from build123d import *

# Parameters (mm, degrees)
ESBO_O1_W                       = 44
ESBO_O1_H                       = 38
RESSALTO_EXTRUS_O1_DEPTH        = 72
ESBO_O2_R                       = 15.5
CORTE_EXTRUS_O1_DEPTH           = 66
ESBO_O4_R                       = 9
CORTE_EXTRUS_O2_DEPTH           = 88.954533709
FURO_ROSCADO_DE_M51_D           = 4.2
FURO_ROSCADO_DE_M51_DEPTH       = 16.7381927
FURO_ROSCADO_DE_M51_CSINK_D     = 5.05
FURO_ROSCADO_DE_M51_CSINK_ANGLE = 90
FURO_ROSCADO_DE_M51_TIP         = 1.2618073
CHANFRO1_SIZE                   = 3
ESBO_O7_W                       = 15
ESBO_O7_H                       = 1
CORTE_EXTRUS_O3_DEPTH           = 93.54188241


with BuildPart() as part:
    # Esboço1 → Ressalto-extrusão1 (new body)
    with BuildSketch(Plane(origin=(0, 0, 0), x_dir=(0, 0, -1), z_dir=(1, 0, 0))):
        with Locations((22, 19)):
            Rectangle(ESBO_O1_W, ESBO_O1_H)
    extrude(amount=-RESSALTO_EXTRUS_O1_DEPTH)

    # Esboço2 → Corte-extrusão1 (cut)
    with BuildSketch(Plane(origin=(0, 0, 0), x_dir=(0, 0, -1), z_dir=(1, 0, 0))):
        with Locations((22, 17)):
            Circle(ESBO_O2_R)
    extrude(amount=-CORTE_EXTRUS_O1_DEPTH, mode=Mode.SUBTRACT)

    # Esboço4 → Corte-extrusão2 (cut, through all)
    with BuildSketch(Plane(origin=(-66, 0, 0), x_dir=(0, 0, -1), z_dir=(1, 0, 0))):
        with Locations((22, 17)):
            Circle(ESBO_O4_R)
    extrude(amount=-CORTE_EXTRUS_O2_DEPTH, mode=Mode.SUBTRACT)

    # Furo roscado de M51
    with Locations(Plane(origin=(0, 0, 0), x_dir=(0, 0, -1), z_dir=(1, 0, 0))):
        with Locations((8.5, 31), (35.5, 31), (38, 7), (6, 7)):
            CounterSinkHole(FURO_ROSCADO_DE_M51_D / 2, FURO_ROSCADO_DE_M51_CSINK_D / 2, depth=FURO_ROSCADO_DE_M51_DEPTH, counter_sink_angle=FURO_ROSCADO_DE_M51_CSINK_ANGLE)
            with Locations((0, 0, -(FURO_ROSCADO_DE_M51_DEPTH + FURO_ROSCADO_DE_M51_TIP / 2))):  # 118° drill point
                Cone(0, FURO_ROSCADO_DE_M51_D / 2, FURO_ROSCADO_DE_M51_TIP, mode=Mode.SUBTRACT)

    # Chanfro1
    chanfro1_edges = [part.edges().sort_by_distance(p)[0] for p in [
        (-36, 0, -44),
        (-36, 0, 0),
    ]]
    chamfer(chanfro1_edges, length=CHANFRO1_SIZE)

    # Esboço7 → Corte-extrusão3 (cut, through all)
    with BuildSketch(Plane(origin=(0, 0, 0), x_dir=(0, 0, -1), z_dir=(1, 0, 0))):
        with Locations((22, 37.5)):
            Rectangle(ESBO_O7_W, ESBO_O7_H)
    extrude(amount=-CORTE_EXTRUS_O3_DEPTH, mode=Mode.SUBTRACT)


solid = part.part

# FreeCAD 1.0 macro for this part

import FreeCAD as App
import Part
import Sketcher


def edges_at(feature, points):
    """Names of the edges that pass closest to the given points."""
    edges = feature.Shape.Edges
    near = lambda p: min(range(len(edges)), key=lambda i: edges[i].distToShape(Part.Vertex(*p))[0])
    return sorted({f"Edge{near(p) + 1}" for p in points})

doc = App.newDocument("Part")
body = doc.addObject("PartDesign::Body", "Body")

# Sketch on YZ plane
sketch1 = body.newObject("Sketcher::SketchObject", "Sketch")
sketch1.AttachmentSupport = (doc.getObject("YZ_Plane"), [""])
sketch1.MapMode = "FlatFace"
sketch1.addGeometry(Part.LineSegment(App.Vector(38, 0, 0), App.Vector(0, 0, 0)), False)
sketch1.addGeometry(Part.LineSegment(App.Vector(0, 0, 0), App.Vector(0, -44, 0)), False)
sketch1.addGeometry(Part.LineSegment(App.Vector(0, -44, 0), App.Vector(38, -44, 0)), False)
sketch1.addGeometry(Part.LineSegment(App.Vector(38, -44, 0), App.Vector(38, 0, 0)), False)
sketch1.addConstraint(Sketcher.Constraint("Coincident", 0, 2, 1, 1))
sketch1.addConstraint(Sketcher.Constraint("Coincident", 1, 2, 2, 1))
sketch1.addConstraint(Sketcher.Constraint("Coincident", 2, 2, 3, 1))
sketch1.addConstraint(Sketcher.Constraint("Coincident", 3, 2, 0, 1))
sketch1.addConstraint(Sketcher.Constraint("Horizontal", 0))
sketch1.addConstraint(Sketcher.Constraint("Vertical", 1))
sketch1.addConstraint(Sketcher.Constraint("Horizontal", 2))
sketch1.addConstraint(Sketcher.Constraint("Vertical", 3))
sketch1.addConstraint(Sketcher.Constraint("Coincident", 0, 2, -1, 1))
sketch1.addConstraint(Sketcher.Constraint("DistanceX", 0, 2, 0, 1, 38.0))
sketch1.addConstraint(Sketcher.Constraint("DistanceY", 1, 2, 1, 1, 44.0))
pad1 = body.newObject("PartDesign::Pad", "Pad")
pad1.Profile = sketch1
pad1.Length = 72
pad1.Reversed = True

# Sketch on YZ plane
sketch2 = body.newObject("Sketcher::SketchObject", "Sketch001")
sketch2.AttachmentSupport = (doc.getObject("YZ_Plane"), [""])
sketch2.MapMode = "FlatFace"
sketch2.addGeometry(Part.Circle(App.Vector(17, -22, 0), App.Vector(0, 0, 1), 16), False)
sketch2.addConstraint(Sketcher.Constraint("Diameter", 0, 31.0))
sketch2.addConstraint(Sketcher.Constraint("DistanceX", -1, 1, 0, 3, 17.0))
sketch2.addConstraint(Sketcher.Constraint("DistanceY", 0, 3, -1, 1, 22.0))
pocket1 = body.newObject("PartDesign::Pocket", "Pocket")
pocket1.Profile = sketch2
pocket1.Length = 66

# Sketch on YZ plane
sketch3 = body.newObject("Sketcher::SketchObject", "Sketch002")
sketch3.AttachmentSupport = (doc.getObject("YZ_Plane"), [""])
sketch3.MapMode = "FlatFace"
sketch3.AttachmentOffset = App.Placement(App.Vector(0, 0, -66), App.Rotation())
sketch3.addGeometry(Part.Circle(App.Vector(17, -22, 0), App.Vector(0, 0, 1), 9), False)
sketch3.addConstraint(Sketcher.Constraint("Diameter", 0, 18.0))
sketch3.addConstraint(Sketcher.Constraint("DistanceX", -1, 1, 0, 3, 17.0))
sketch3.addConstraint(Sketcher.Constraint("DistanceY", 0, 3, -1, 1, 22.0))
pocket2 = body.newObject("PartDesign::Pocket", "Pocket001")
pocket2.Profile = sketch3
pocket2.Type = "ThroughAll"

# Sketch on YZ plane
sketch4 = body.newObject("Sketcher::SketchObject", "Sketch003")
sketch4.AttachmentSupport = (doc.getObject("YZ_Plane"), [""])
sketch4.MapMode = "FlatFace"
sketch4.addGeometry(Part.Circle(App.Vector(31, -8.5, 0), App.Vector(0, 0, 1), 2.1), False)
sketch4.addGeometry(Part.Circle(App.Vector(31, -35.5, 0), App.Vector(0, 0, 1), 2.1), False)
sketch4.addGeometry(Part.Circle(App.Vector(7, -38, 0), App.Vector(0, 0, 1), 2.1), False)
sketch4.addGeometry(Part.Circle(App.Vector(7, -6, 0), App.Vector(0, 0, 1), 2.1), False)
sketch4.addConstraint(Sketcher.Constraint("Equal", 0, 1))
sketch4.addConstraint(Sketcher.Constraint("Equal", 1, 2))
sketch4.addConstraint(Sketcher.Constraint("Equal", 2, 3))
sketch4.addConstraint(Sketcher.Constraint("Vertical", 0, 3, 1, 3))
sketch4.addConstraint(Sketcher.Constraint("Vertical", 2, 3, 3, 3))
sketch4.addConstraint(Sketcher.Constraint("Diameter", 0, 4.2))
sketch4.addConstraint(Sketcher.Constraint("DistanceX", -1, 1, 0, 3, 31.0))
sketch4.addConstraint(Sketcher.Constraint("DistanceX", -1, 1, 2, 3, 7.0))
sketch4.addConstraint(Sketcher.Constraint("DistanceY", 2, 3, -1, 1, 38.0))
sketch4.addConstraint(Sketcher.Constraint("DistanceY", 3, 3, -1, 1, 6.0))
sketch4.addConstraint(Sketcher.Constraint("DistanceY", 1, 3, 0, 3, 27.0))
sketch4.addConstraint(Sketcher.Constraint("DistanceY", 0, 3, -1, 1, 8.5))
doc.recompute()
hole = body.newObject("PartDesign::Hole", "Hole")
hole.Profile = sketch4
hole.ThreadType = "None"
hole.Diameter = 4.2
hole.DepthType = "Dimension"
hole.Depth = 16.738193
hole.DrillPoint = "Angled"
hole.DrillPointAngle = 118
hole.HoleCutType = "Countersink"
hole.HoleCutDiameter = 5.05
hole.HoleCutCountersinkAngle = 90
doc.recompute()

chamfer = body.newObject("PartDesign::Chamfer", "Chamfer")
chamfer.Base = (hole, edges_at(hole, [(-36, 0, -44), (-36, 0, 0)]))
chamfer.Size = 3

# Sketch on YZ plane
sketch5 = body.newObject("Sketcher::SketchObject", "Sketch004")
sketch5.AttachmentSupport = (doc.getObject("YZ_Plane"), [""])
sketch5.MapMode = "FlatFace"
sketch5.addGeometry(Part.LineSegment(App.Vector(38, -14.5, 0), App.Vector(37, -14.5, 0)), False)
sketch5.addGeometry(Part.LineSegment(App.Vector(37, -14.5, 0), App.Vector(37, -29.5, 0)), False)
sketch5.addGeometry(Part.LineSegment(App.Vector(37, -29.5, 0), App.Vector(38, -29.5, 0)), False)
sketch5.addGeometry(Part.LineSegment(App.Vector(38, -29.5, 0), App.Vector(38, -14.5, 0)), False)
sketch5.addConstraint(Sketcher.Constraint("Coincident", 0, 2, 1, 1))
sketch5.addConstraint(Sketcher.Constraint("Coincident", 1, 2, 2, 1))
sketch5.addConstraint(Sketcher.Constraint("Coincident", 2, 2, 3, 1))
sketch5.addConstraint(Sketcher.Constraint("Coincident", 3, 2, 0, 1))
sketch5.addConstraint(Sketcher.Constraint("Horizontal", 0))
sketch5.addConstraint(Sketcher.Constraint("Vertical", 1))
sketch5.addConstraint(Sketcher.Constraint("Horizontal", 2))
sketch5.addConstraint(Sketcher.Constraint("Vertical", 3))
sketch5.addConstraint(Sketcher.Constraint("DistanceX", 0, 2, 0, 1, 1.0))
sketch5.addConstraint(Sketcher.Constraint("DistanceY", 1, 2, 1, 1, 15.0))
sketch5.addConstraint(Sketcher.Constraint("DistanceX", -1, 1, 0, 2, 37.0))
sketch5.addConstraint(Sketcher.Constraint("DistanceY", 0, 2, -1, 1, 14.5))
pocket3 = body.newObject("PartDesign::Pocket", "Pocket002")
pocket3.Profile = sketch5
pocket3.Type = "ThroughAll"

doc.recompute()
